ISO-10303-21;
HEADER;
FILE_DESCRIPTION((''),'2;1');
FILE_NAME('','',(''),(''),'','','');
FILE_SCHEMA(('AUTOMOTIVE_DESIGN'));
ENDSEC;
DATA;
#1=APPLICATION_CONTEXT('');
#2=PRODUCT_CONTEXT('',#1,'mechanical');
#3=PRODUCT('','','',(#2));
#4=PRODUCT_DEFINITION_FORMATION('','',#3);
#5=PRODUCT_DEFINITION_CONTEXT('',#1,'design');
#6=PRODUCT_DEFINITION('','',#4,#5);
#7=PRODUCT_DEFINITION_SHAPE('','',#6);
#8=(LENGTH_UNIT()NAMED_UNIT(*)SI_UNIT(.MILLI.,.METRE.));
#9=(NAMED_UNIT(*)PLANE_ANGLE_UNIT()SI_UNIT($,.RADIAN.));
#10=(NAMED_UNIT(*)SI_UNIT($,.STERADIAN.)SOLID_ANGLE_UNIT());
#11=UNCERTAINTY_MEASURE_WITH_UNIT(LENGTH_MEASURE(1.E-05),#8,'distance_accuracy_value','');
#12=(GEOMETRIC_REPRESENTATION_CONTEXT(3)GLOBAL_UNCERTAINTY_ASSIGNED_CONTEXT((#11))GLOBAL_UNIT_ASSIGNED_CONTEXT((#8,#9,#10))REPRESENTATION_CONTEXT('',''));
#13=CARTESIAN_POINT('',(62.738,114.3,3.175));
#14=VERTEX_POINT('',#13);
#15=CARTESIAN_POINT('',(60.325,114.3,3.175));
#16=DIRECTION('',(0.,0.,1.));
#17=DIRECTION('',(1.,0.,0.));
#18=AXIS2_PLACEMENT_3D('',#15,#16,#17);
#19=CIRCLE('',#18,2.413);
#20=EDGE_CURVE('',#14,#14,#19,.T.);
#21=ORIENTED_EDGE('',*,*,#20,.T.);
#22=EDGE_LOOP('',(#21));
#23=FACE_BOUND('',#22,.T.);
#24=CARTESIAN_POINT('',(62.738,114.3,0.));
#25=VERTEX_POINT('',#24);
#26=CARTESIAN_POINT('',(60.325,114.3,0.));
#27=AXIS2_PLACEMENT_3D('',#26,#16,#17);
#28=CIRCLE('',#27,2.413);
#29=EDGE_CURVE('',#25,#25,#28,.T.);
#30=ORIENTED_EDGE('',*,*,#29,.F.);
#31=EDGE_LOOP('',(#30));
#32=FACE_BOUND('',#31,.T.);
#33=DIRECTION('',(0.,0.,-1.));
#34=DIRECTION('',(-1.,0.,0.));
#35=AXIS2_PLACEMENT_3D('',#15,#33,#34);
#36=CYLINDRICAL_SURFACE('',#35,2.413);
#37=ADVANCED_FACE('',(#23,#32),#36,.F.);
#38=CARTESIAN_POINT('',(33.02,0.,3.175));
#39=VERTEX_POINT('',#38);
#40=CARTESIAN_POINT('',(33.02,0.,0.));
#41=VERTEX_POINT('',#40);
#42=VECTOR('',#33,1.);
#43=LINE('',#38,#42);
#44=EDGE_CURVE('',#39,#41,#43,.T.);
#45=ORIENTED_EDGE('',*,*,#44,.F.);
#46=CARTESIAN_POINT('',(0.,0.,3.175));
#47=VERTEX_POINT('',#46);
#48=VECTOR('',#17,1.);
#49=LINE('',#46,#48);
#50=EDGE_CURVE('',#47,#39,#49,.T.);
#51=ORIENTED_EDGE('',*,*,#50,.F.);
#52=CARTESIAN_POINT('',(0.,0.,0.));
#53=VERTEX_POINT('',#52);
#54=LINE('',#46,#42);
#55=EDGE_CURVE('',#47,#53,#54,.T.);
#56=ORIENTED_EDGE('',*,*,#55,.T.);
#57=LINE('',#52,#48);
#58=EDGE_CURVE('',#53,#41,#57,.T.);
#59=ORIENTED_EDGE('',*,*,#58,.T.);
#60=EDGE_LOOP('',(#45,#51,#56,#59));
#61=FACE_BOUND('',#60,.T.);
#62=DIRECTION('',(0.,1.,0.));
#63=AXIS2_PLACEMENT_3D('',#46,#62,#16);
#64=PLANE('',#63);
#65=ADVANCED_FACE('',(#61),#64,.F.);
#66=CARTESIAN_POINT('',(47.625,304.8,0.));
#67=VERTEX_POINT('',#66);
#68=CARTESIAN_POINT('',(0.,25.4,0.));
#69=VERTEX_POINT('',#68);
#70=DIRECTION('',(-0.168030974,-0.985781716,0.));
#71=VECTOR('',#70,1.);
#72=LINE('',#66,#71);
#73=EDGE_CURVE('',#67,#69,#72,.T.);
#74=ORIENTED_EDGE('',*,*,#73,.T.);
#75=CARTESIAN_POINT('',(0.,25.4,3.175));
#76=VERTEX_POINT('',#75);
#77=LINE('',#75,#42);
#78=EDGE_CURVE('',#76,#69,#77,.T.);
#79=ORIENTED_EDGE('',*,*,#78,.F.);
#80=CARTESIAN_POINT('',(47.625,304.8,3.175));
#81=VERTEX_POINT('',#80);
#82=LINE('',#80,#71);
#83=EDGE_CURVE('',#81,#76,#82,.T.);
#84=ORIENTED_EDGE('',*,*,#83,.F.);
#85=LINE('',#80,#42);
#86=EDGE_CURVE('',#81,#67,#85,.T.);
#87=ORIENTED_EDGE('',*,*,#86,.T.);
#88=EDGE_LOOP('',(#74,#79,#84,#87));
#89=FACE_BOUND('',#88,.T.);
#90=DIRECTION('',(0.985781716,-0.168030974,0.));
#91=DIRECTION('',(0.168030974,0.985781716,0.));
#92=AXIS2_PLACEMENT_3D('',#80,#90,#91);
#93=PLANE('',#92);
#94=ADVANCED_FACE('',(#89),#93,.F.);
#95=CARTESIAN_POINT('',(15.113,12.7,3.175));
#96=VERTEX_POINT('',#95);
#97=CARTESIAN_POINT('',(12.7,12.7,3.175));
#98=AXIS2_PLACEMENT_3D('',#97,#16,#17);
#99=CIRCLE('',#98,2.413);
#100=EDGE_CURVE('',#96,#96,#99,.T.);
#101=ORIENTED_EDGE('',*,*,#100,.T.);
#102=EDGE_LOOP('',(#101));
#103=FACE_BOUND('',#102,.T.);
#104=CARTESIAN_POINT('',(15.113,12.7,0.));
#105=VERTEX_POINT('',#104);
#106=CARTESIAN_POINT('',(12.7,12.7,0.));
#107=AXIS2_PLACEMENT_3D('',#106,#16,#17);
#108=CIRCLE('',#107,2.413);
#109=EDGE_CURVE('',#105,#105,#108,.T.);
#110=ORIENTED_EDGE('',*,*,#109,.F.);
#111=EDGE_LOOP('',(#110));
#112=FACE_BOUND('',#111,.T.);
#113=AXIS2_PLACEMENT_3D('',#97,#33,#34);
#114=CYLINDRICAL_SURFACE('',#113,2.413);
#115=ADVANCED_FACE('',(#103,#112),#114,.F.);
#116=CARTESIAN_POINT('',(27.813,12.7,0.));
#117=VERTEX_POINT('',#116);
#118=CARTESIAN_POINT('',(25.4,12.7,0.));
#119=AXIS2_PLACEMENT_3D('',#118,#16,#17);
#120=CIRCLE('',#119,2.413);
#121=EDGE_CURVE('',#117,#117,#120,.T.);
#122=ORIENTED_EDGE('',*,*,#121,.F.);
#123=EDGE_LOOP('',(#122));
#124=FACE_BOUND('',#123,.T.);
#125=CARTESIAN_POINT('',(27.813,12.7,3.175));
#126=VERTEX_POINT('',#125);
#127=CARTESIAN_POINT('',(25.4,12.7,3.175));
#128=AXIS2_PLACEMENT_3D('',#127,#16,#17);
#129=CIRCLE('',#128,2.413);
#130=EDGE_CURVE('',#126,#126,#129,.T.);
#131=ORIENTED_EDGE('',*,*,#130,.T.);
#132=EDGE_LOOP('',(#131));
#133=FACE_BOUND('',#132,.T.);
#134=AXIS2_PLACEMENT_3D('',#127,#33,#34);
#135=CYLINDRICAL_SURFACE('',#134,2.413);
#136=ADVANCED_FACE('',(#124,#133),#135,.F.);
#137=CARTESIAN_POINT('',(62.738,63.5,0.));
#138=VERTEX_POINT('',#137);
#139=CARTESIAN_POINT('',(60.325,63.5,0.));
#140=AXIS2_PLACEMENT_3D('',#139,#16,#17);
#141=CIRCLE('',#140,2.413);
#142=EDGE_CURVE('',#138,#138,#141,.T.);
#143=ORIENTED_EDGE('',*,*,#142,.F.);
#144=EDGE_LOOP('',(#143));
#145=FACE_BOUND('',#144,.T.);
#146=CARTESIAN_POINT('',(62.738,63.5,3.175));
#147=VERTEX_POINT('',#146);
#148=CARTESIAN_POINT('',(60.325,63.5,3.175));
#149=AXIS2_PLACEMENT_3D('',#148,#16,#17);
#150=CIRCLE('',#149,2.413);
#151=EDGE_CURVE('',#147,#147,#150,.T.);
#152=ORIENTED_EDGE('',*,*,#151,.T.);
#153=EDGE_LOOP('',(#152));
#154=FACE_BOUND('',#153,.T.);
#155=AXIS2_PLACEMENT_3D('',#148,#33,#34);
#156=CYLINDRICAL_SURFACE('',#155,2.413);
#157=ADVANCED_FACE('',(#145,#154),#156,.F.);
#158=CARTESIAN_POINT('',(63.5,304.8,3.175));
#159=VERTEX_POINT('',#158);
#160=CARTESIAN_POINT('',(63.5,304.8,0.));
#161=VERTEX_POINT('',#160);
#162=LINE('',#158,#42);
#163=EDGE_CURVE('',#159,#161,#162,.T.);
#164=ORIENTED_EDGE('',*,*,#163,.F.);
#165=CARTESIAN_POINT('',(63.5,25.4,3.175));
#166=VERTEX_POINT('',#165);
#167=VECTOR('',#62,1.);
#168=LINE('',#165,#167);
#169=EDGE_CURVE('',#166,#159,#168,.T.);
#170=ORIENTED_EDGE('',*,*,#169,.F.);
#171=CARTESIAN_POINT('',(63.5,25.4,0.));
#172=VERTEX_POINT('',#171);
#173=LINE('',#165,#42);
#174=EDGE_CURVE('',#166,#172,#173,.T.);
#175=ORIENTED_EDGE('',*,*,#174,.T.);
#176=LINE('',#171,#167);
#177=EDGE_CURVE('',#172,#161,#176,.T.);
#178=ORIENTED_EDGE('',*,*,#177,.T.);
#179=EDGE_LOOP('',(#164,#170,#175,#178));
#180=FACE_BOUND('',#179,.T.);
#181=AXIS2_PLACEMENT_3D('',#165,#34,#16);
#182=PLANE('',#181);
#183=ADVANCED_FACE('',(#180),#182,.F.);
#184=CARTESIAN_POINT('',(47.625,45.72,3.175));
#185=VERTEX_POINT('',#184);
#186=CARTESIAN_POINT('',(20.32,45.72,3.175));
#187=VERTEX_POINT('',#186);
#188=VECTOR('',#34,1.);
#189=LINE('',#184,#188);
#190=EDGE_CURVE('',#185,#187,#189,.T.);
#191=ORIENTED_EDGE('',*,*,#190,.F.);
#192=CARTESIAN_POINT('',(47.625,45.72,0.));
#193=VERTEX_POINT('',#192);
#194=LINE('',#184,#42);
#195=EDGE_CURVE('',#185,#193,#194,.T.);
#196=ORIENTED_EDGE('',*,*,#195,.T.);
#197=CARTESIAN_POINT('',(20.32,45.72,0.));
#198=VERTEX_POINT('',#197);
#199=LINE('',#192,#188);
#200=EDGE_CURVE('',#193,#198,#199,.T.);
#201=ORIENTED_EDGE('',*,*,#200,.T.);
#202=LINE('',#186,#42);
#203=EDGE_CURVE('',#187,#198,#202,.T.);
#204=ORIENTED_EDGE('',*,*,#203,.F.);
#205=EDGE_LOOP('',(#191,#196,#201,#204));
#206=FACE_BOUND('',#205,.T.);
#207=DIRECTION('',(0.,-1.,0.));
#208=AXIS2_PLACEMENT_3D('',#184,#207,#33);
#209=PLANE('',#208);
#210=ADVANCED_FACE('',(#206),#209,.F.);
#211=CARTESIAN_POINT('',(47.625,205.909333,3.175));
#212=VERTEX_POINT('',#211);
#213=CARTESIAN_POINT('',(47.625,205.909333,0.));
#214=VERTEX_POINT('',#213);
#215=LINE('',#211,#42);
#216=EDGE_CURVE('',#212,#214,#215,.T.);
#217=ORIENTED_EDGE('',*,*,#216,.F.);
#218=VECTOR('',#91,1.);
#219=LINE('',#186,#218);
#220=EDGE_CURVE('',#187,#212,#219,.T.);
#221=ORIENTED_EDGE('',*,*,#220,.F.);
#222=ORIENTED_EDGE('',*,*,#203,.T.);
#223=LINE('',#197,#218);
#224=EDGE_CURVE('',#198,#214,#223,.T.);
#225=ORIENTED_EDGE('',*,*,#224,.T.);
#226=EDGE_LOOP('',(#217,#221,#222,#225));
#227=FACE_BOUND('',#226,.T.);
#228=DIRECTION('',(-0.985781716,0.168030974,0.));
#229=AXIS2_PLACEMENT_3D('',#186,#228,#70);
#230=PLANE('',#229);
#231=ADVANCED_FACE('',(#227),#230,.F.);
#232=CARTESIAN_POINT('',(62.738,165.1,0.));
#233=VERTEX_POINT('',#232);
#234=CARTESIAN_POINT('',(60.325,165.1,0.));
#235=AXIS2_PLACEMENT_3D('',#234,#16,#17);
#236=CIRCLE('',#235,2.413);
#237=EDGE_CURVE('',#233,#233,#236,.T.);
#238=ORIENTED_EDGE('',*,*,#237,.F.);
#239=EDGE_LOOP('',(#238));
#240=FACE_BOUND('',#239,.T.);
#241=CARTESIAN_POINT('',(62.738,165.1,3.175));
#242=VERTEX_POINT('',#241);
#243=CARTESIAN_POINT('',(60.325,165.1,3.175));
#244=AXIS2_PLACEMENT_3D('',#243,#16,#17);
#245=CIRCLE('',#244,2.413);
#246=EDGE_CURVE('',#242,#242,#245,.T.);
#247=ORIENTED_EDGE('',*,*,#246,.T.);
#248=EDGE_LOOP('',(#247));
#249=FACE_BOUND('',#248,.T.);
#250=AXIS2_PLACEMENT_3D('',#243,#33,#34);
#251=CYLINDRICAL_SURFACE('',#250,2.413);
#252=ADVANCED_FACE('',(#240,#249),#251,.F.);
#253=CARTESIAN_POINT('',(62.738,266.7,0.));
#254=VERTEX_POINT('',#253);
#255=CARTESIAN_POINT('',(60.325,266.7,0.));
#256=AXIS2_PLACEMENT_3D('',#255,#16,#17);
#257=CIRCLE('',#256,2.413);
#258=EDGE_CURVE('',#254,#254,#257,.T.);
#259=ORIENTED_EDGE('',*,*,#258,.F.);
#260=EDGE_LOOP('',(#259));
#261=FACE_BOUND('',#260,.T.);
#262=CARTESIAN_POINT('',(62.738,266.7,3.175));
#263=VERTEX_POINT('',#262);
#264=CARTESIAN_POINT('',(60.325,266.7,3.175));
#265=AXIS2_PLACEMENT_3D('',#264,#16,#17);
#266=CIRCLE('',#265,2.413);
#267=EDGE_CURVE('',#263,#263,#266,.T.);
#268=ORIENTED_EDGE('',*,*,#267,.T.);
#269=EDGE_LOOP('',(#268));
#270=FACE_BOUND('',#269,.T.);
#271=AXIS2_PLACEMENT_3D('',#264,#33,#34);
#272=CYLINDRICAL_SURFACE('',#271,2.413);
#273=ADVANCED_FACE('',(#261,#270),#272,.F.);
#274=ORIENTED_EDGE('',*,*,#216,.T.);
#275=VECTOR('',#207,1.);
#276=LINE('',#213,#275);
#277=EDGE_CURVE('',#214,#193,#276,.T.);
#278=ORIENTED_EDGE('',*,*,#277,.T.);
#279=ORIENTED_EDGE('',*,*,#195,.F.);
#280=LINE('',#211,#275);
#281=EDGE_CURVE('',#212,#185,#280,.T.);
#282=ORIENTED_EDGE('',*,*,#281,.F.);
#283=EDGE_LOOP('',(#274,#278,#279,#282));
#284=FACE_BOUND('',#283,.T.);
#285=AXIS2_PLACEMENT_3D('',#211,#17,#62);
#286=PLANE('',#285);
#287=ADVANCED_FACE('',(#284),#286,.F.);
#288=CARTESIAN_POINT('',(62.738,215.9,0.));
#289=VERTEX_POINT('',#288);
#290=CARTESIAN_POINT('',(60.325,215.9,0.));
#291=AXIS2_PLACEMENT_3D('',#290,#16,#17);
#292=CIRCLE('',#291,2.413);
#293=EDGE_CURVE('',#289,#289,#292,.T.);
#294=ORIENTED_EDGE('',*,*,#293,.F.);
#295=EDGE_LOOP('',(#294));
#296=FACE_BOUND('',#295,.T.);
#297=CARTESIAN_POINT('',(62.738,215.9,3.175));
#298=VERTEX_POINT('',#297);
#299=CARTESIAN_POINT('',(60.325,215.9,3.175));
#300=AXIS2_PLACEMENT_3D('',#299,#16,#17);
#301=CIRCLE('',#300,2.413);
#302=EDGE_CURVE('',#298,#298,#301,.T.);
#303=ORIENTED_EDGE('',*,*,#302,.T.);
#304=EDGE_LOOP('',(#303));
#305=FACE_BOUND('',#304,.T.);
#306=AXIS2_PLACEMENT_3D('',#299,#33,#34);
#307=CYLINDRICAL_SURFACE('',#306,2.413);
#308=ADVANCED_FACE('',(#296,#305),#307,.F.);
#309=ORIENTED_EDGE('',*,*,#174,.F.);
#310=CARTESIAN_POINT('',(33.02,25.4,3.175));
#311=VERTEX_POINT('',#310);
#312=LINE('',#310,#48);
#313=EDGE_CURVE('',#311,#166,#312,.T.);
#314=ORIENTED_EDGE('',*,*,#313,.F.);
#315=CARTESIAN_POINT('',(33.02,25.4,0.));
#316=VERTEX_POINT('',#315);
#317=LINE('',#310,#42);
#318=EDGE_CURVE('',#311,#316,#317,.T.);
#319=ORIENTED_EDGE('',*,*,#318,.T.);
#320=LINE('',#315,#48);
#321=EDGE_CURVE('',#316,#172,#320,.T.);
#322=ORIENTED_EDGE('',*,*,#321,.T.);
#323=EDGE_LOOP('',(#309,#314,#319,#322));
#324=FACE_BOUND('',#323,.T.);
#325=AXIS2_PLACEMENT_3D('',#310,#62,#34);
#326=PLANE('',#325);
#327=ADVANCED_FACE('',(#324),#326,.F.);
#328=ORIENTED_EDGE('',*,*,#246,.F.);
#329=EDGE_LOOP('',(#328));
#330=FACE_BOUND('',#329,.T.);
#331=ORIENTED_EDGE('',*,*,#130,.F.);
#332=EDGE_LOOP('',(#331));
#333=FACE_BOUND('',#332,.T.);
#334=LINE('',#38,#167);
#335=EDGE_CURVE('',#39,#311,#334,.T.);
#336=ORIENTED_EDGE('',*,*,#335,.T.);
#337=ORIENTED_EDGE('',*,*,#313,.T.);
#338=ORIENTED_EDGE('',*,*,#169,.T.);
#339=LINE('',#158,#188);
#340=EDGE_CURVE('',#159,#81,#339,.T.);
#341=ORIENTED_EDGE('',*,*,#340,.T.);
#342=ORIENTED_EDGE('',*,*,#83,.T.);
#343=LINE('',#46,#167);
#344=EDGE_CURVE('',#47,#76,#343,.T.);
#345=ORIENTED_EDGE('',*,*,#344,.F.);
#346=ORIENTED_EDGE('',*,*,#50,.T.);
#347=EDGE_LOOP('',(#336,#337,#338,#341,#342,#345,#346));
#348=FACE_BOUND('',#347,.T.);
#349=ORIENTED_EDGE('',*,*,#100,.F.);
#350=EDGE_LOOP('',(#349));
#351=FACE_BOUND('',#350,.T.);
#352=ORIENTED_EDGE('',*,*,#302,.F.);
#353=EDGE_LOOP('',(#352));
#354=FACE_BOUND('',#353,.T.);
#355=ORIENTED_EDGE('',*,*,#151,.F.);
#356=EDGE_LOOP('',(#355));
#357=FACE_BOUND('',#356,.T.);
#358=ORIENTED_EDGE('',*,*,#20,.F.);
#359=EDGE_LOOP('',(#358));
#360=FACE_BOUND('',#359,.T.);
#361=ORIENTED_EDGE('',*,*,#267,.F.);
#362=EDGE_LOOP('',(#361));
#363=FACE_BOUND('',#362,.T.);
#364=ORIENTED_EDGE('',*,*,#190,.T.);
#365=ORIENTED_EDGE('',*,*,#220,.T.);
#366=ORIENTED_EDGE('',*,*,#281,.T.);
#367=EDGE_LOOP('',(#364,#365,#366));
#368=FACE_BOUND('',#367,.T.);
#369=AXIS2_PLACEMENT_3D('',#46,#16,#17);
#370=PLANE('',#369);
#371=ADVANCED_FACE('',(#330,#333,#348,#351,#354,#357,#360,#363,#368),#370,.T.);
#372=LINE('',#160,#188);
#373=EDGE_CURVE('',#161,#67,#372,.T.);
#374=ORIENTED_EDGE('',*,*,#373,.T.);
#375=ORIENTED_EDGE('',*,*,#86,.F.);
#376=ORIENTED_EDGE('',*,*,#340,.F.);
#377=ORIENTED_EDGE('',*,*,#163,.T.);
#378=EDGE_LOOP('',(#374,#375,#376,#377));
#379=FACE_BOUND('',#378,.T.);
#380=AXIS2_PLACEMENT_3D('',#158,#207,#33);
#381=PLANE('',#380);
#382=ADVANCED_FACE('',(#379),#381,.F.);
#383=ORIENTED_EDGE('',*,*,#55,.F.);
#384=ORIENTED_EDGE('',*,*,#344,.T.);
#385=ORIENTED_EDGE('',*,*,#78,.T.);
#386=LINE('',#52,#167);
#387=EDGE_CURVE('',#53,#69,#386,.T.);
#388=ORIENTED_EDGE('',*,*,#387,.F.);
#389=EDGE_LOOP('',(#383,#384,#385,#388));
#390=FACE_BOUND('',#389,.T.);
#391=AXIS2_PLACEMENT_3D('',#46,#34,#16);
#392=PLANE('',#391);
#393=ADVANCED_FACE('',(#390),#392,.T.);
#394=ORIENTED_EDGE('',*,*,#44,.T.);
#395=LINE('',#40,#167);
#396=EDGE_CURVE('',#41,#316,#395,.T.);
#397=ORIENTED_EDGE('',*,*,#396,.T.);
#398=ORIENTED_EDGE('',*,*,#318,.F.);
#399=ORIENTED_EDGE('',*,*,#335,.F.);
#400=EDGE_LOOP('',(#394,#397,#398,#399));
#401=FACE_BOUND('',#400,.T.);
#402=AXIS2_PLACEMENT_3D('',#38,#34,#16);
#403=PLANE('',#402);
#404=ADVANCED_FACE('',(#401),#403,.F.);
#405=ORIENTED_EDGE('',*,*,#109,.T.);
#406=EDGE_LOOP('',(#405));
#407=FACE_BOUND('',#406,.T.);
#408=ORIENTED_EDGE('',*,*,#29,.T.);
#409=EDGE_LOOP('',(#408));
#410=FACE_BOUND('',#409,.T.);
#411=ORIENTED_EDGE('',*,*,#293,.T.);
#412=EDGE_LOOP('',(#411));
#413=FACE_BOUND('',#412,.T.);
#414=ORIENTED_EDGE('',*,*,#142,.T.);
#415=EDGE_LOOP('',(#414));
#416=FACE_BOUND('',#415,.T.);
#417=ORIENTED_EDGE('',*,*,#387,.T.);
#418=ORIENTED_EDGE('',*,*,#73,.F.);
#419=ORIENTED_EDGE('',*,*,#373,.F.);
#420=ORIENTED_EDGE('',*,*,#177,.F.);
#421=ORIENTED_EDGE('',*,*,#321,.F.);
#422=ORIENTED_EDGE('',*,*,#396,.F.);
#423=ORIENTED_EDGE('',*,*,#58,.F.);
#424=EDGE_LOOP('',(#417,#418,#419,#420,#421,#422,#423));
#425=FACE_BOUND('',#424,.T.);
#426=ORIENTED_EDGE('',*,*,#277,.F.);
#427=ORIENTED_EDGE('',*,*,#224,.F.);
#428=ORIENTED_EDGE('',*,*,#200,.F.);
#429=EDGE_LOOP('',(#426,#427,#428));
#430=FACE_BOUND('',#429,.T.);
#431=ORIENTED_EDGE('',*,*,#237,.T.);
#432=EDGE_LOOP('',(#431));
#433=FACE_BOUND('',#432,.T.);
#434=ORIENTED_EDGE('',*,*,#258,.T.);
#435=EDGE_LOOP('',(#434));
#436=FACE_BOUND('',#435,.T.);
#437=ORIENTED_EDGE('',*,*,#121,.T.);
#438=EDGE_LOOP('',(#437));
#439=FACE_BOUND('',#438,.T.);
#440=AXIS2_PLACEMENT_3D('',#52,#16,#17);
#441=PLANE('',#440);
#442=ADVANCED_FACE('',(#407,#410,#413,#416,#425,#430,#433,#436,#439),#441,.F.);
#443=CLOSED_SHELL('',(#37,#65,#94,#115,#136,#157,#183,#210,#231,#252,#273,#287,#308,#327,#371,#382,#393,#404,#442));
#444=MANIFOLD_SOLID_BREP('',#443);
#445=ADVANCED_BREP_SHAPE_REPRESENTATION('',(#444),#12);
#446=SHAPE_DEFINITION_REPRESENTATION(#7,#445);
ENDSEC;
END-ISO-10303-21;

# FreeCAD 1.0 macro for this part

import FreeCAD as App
import Part
import Sketcher
Q = App.Units.Quantity


def add_polygon(sketch, points):
    """Adds a closed chain of lines whose ends are joined by coincident constraints."""
    first, n = sketch.GeometryCount, len(points)
    for a, b in zip(points, points[1:] + points[:1]):
        sketch.addGeometry(Part.LineSegment(App.Vector(*a, 0), App.Vector(*b, 0)), False)
    for i in range(n):
        sketch.addConstraint(Sketcher.Constraint("Coincident", first + i, 2, first + (i + 1) % n, 1))

doc = App.newDocument("Part")
body = doc.addObject("PartDesign::Body", "Body")

sketch1 = doc.addObject("Sketcher::SketchObject", "Sketch")
body.addObject(sketch1)
sketch1.AttachmentSupport = (doc.XY_Plane, [""])
sketch1.MapMode = "FlatFace"
add_polygon(sketch1, [(0, 0), (33.02, 0), (33.02, 25.4), (63.5, 25.4), (63.5, 304.8), (47.625, 304.8), (0, 25.4)])
sketch1.addGeometry(Part.Circle(App.Vector(12.7, 12.7, 0), App.Vector(0, 0, 1), 2.413), False)
sketch1.addGeometry(Part.Circle(App.Vector(25.4, 12.7, 0), App.Vector(0, 0, 1), 2.413), False)
add_polygon(sketch1, [(20.32, 45.72), (47.625, 205.909333), (47.625, 45.72)])
sketch1.addGeometry(Part.Circle(App.Vector(60.325, 63.5, 0), App.Vector(0, 0, 1), 2.413), False)
sketch1.addGeometry(Part.Circle(App.Vector(60.325, 114.3, 0), App.Vector(0, 0, 1), 2.413), False)
sketch1.addGeometry(Part.Circle(App.Vector(60.325, 165.1, 0), App.Vector(0, 0, 1), 2.413), False)
sketch1.addGeometry(Part.Circle(App.Vector(60.325, 215.9, 0), App.Vector(0, 0, 1), 2.413), False)
sketch1.addGeometry(Part.Circle(App.Vector(60.325, 266.7, 0), App.Vector(0, 0, 1), 2.413), False)
sketch1.addConstraint([
    Sketcher.Constraint("Horizontal", 0),
    Sketcher.Constraint("Vertical", 1),
    Sketcher.Constraint("Horizontal", 2),
    Sketcher.Constraint("Vertical", 3),
    Sketcher.Constraint("Horizontal", 4),
    Sketcher.Constraint("Vertical", 6),
    Sketcher.Constraint("Vertical", 10),
    Sketcher.Constraint("Horizontal", 11),
    Sketcher.Constraint("Coincident", 6, 2, -1, 1),
    Sketcher.Constraint("Equal", 7, 8),
    Sketcher.Constraint("Equal", 8, 12),
    Sketcher.Constraint("Equal", 12, 13),
    Sketcher.Constraint("Equal", 13, 14),
    Sketcher.Constraint("Equal", 14, 15),
    Sketcher.Constraint("Equal", 15, 16),
    Sketcher.Constraint("Parallel", 5, 9),
    Sketcher.Constraint("Horizontal", 7, 3, 8, 3),
    Sketcher.Constraint("Horizontal", 2, 2, 5, 2),
    Sketcher.Constraint("Vertical", 12, 3, 13, 3),
    Sketcher.Constraint("Vertical", 13, 3, 14, 3),
    Sketcher.Constraint("Vertical", 14, 3, 15, 3),
    Sketcher.Constraint("Vertical", 15, 3, 16, 3),
    Sketcher.Constraint("Vertical", 4, 2, 9, 2),
    Sketcher.Constraint("Diameter", 7, Q("0.19 in")),
    Sketcher.Constraint("DistanceY", 1, 1, 1, 2, Q("1 in")),
    Sketcher.Constraint("DistanceY", 3, 1, 3, 2, Q("11 in")),
    Sketcher.Constraint("DistanceX", 0, 1, 0, 2, Q("1.3 in")),
    Sketcher.Constraint("DistanceX", 2, 1, 2, 2, Q("1.2 in")),
    Sketcher.Constraint("DistanceX", -1, 1, 8, 3, Q("1 in")),
    Sketcher.Constraint("DistanceY", 8, 3, 12, 3, Q("2 in")),
    Sketcher.Constraint("DistanceY", 12, 3, 13, 3, Q("2 in")),
    Sketcher.Constraint("DistanceY", 13, 3, 14, 3, Q("2 in")),
    Sketcher.Constraint("DistanceY", 14, 3, 15, 3, Q("2 in")),
    Sketcher.Constraint("DistanceY", 15, 3, 16, 3, Q("2 in")),
    Sketcher.Constraint("DistanceX", 7, 3, 2, 2, Q("2 in")),
    Sketcher.Constraint("DistanceY", -1, 1, 7, 3, Q("0.5 in")),
    Sketcher.Constraint("DistanceY", -1, 1, 10, 2, Q("1.8 in")),
    Sketcher.Constraint("DistanceX", -1, 1, 11, 2, Q("0.8 in")),
    Sketcher.Constraint("DistanceX", 4, 2, 16, 3, Q("0.5 in")),
    Sketcher.Constraint("DistanceX", 4, 2, 4, 1, Q("0.625 in")),
])
pad1 = doc.addObject("PartDesign::Pad", "Pad")
body.addObject(pad1)
pad1.Profile = sketch1
pad1.Length = Q("0.125 in")

doc.recompute()
